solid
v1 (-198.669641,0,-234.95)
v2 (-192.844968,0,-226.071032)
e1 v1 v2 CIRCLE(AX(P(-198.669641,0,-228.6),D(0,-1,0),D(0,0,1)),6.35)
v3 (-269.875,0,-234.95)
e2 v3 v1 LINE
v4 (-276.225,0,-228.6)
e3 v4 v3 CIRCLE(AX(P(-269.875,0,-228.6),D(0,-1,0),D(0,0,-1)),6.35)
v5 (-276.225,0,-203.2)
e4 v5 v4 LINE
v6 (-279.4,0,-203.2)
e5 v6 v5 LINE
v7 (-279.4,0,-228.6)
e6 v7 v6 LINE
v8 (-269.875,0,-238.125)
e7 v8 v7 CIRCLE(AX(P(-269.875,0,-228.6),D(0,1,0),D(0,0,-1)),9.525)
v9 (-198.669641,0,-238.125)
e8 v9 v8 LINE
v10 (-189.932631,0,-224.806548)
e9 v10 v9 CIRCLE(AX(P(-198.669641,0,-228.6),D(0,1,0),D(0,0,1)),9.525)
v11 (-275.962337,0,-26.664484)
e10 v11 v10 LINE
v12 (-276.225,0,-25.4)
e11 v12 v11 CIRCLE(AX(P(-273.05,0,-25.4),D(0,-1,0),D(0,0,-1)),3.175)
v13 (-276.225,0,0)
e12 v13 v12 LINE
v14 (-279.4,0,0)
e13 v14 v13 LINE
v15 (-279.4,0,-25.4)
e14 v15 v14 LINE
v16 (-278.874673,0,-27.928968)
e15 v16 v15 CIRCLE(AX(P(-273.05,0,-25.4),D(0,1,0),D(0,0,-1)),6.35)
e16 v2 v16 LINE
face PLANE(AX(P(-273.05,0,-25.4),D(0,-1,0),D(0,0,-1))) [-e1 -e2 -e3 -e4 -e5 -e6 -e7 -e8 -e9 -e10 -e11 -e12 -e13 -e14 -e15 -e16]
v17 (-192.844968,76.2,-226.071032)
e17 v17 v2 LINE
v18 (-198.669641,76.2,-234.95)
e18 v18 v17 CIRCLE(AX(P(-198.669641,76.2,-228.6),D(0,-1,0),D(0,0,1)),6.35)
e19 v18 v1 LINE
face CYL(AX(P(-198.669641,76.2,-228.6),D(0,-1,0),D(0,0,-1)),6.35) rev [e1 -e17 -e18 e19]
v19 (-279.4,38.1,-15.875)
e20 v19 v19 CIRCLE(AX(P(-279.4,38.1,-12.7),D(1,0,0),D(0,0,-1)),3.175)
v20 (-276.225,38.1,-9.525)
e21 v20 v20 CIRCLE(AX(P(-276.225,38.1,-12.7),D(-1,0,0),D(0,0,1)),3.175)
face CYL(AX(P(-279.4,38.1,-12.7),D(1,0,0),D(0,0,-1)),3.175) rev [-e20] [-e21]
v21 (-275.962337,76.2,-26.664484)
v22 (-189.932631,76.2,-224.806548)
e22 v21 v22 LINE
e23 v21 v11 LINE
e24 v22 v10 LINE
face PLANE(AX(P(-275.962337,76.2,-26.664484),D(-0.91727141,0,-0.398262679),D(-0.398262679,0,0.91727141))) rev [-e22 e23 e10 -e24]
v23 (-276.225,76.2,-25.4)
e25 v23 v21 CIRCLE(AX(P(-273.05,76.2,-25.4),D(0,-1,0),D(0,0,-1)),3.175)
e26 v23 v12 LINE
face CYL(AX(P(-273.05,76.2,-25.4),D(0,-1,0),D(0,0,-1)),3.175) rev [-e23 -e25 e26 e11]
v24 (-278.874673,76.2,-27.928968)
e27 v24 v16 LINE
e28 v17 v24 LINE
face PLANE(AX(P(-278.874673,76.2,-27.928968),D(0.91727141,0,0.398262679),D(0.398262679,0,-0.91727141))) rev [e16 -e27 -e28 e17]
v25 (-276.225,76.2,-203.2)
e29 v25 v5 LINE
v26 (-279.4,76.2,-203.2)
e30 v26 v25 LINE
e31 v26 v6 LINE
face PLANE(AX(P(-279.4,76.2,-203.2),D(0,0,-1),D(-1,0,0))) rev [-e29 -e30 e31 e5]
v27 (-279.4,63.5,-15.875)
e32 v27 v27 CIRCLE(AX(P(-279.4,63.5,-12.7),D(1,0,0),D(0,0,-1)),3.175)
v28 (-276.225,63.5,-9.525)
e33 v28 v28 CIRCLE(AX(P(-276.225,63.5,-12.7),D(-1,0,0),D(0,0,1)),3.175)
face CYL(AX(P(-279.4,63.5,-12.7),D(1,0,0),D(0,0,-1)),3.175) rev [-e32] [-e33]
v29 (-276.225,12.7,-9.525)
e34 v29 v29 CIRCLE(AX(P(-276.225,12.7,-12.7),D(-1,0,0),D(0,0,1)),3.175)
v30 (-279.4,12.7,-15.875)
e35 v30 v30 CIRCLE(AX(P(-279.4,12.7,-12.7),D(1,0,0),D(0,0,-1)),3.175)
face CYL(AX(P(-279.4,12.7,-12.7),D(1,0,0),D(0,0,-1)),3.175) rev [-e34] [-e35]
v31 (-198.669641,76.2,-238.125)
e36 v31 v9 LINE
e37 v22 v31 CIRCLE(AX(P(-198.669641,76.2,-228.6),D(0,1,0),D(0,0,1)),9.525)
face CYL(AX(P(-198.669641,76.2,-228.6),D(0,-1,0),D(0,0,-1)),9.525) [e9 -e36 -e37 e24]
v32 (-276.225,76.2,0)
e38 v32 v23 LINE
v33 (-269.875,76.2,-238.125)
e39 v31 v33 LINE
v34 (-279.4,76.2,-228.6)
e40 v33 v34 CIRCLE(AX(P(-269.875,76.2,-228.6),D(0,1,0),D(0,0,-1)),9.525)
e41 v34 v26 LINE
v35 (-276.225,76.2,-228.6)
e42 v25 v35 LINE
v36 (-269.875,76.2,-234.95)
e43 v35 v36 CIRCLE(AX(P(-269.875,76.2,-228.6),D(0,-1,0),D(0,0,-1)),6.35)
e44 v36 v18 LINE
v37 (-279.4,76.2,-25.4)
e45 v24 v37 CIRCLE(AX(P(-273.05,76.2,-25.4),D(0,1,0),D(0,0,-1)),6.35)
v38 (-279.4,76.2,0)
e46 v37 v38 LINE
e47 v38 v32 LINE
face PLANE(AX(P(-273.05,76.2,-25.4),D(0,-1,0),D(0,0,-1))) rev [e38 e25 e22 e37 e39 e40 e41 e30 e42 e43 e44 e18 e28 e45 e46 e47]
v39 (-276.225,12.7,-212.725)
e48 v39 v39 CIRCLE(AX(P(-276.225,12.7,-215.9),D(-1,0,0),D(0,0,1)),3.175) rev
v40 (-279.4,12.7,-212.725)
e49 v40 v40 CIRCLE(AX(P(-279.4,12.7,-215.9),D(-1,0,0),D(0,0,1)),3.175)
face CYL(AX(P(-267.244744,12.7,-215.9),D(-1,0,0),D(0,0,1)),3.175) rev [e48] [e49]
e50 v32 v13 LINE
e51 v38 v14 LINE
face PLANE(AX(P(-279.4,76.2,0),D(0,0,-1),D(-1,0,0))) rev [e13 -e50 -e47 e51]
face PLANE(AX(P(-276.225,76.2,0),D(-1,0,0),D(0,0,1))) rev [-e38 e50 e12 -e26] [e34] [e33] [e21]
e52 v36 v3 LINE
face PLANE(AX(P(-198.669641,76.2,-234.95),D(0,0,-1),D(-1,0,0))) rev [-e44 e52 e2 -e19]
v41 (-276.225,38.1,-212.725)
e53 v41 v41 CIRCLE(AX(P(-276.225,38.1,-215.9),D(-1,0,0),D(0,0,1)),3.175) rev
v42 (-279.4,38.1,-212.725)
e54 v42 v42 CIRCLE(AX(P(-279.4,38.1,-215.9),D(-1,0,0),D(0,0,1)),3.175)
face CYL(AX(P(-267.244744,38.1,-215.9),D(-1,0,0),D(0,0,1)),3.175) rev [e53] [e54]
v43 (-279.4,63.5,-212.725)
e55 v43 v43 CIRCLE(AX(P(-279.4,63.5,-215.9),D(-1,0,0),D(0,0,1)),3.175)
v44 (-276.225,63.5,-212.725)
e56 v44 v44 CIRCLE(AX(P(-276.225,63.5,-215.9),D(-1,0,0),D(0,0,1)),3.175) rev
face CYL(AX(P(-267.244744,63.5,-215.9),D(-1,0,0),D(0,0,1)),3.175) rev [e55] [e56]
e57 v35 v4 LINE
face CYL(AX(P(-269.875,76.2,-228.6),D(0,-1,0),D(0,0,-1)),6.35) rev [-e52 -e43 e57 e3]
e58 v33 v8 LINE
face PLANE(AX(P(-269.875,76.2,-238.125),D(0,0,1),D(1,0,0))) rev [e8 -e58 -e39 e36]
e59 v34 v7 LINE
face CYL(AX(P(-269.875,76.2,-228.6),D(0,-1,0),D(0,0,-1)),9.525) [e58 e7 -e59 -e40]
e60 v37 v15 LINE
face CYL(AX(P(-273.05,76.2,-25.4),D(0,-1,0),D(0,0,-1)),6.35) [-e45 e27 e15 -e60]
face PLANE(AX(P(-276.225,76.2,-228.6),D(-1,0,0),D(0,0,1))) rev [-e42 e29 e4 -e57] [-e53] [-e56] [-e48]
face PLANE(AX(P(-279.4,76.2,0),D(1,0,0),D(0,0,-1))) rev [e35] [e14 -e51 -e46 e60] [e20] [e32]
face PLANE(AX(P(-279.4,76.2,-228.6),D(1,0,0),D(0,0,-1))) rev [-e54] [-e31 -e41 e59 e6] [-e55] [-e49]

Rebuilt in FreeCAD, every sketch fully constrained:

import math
import FreeCAD as App
import Part
import Sketcher
Q = App.Units.Quantity

doc = App.newDocument("Part")
body = doc.addObject("PartDesign::Body", "Body")

# Sketch on XZ plane
sketch1 = body.newObject("Sketcher::SketchObject", "Sketch")
sketch1.AttachmentSupport = (doc.getObject("XZ_Plane"), [""])
sketch1.MapMode = "FlatFace"
sketch1.addGeometry([
    Part.LineSegment(App.Vector(-279.4, -25.4, 0), App.Vector(-279.4, 0, 0)),  # 0
    Part.LineSegment(App.Vector(-279.4, 0, 0), App.Vector(-276.2, 0, 0)),  # 1
    Part.LineSegment(App.Vector(-276.2, 0, 0), App.Vector(-276.2, -25.4, 0)),  # 2
    Part.ArcOfCircle(Part.Circle(App.Vector(-273.1, -25.4, 0), App.Vector(0, 0, 1), 3.2), math.radians(180), math.radians(203)),  # 3
    Part.LineSegment(App.Vector(-276, -26.7, 0), App.Vector(-189.9, -224.8, 0)),  # 4
    Part.ArcOfCircle(Part.Circle(App.Vector(-198.7, -228.6, 0), App.Vector(0, 0, 1), 9.5), math.radians(-90), math.radians(23)),  # 5
    Part.LineSegment(App.Vector(-198.7, -238.1, 0), App.Vector(-269.9, -238.1, 0)),  # 6
    Part.ArcOfCircle(Part.Circle(App.Vector(-269.9, -228.6, 0), App.Vector(0, 0, 1), 9.5), math.radians(180), math.radians(270)),  # 7
    Part.LineSegment(App.Vector(-279.4, -228.6, 0), App.Vector(-279.4, -203.2, 0)),  # 8
    Part.LineSegment(App.Vector(-279.4, -203.2, 0), App.Vector(-276.2, -203.2, 0)),  # 9
    Part.LineSegment(App.Vector(-276.2, -203.2, 0), App.Vector(-276.2, -228.6, 0)),  # 10
    Part.ArcOfCircle(Part.Circle(App.Vector(-269.9, -228.6, 0), App.Vector(0, 0, 1), 6.3), math.radians(180), math.radians(270)),  # 11
    Part.LineSegment(App.Vector(-269.9, -234.9, 0), App.Vector(-198.7, -234.9, 0)),  # 12
    Part.ArcOfCircle(Part.Circle(App.Vector(-198.7, -228.6, 0), App.Vector(0, 0, 1), 6.3), math.radians(-90), math.radians(23)),  # 13
    Part.LineSegment(App.Vector(-192.8, -226.1, 0), App.Vector(-278.9, -27.9, 0)),  # 14
    Part.ArcOfCircle(Part.Circle(App.Vector(-273, -25.4, 0), App.Vector(0, 0, 1), 6.4), math.radians(-180), math.radians(-157)),  # 15
], False)
sketch1.addConstraint([
    Sketcher.Constraint("Coincident", 0, 2, 1, 1),
    Sketcher.Constraint("Coincident", 1, 2, 2, 1),
    Sketcher.Constraint("Tangent", 2, 2, 3, 1),
    Sketcher.Constraint("Tangent", 3, 2, 4, 1),
    Sketcher.Constraint("Tangent", 4, 2, 5, 2),
    Sketcher.Constraint("Tangent", 5, 1, 6, 1),
    Sketcher.Constraint("Tangent", 6, 2, 7, 2),
    Sketcher.Constraint("Tangent", 7, 1, 8, 1),
    Sketcher.Constraint("Coincident", 8, 2, 9, 1),
    Sketcher.Constraint("Coincident", 9, 2, 10, 1),
    Sketcher.Constraint("Tangent", 10, 2, 11, 1),
    Sketcher.Constraint("Tangent", 11, 2, 12, 1),
    Sketcher.Constraint("Tangent", 12, 2, 13, 1),
    Sketcher.Constraint("Tangent", 13, 2, 14, 1),
    Sketcher.Constraint("Tangent", 14, 2, 15, 2),
    Sketcher.Constraint("Tangent", 15, 1, 0, 1),
    Sketcher.Constraint("Vertical", 0),
    Sketcher.Constraint("Horizontal", 1),
    Sketcher.Constraint("Vertical", 2),
    Sketcher.Constraint("Horizontal", 6),
    Sketcher.Constraint("Vertical", 8),
    Sketcher.Constraint("Horizontal", 9),
    Sketcher.Constraint("Vertical", 10),
    Sketcher.Constraint("Horizontal", 12),
    Sketcher.Constraint("Coincident", 11, 3, 7, 3),
    Sketcher.Constraint("Coincident", 13, 3, 5, 3),
    Sketcher.Constraint("Coincident", 15, 3, 3, 3),
    Sketcher.Constraint("Equal", 5, 7),
    Sketcher.Constraint("Equal", 13, 15),
    Sketcher.Constraint("PointOnObject", 0, 2, -1),
    Sketcher.Constraint("Parallel", 4, 14),
    Sketcher.Constraint("Vertical", 0, 2, 7, 1),
    Sketcher.Constraint("Equal", 2, 8),
    Sketcher.Constraint("DistanceY", 0, 1, 0, 2, Q("1 in")),
    Sketcher.Constraint("Radius", 11, Q("0.25 in")),
    Sketcher.Constraint("DistanceY", 5, 3, -1, 1, Q("9 in")),
    Sketcher.Constraint("DistanceX", 0, 2, -1, 1, Q("11 in")),
    Sketcher.Constraint("Radius", 3, Q("0.125 in")),
    Sketcher.Constraint("DistanceX", 6, 2, 6, 1, 71.205359),
])
pad1 = body.newObject("PartDesign::Pad", "Pad")
pad1.Profile = sketch1
pad1.Length = Q("3 in")
pad1.Reversed = True

# Sketch on YZ plane
sketch2 = body.newObject("Sketcher::SketchObject", "Sketch001")
sketch2.AttachmentSupport = (doc.getObject("YZ_Plane"), [""])
sketch2.MapMode = "FlatFace"
sketch2.AttachmentOffset = App.Placement(App.Vector(0, 0, -10.875 * 25.4), App.Rotation())
sketch2.addGeometry([
    Part.Circle(App.Vector(63.5, -12.7, 0), App.Vector(0, 0, 1), 3.2),
    Part.Circle(App.Vector(12.7, -12.7, 0), App.Vector(0, 0, 1), 3.2),
    Part.Circle(App.Vector(38.1, -12.7, 0), App.Vector(0, 0, 1), 3.2),
], False)
sketch2.addConstraint([
    Sketcher.Constraint("Equal", 0, 1),
    Sketcher.Constraint("Equal", 1, 2),
    Sketcher.Constraint("Horizontal", 0, 3, 1, 3),
    Sketcher.Constraint("Horizontal", 1, 3, 2, 3),
    Sketcher.Constraint("Diameter", 0, Q("0.25 in")),
    Sketcher.Constraint("DistanceX", 1, 3, 0, 3, Q("2 in")),
    Sketcher.Constraint("DistanceX", 2, 3, 0, 3, Q("1 in")),
    Sketcher.Constraint("DistanceX", -1, 1, 0, 3, Q("2.5 in")),
    Sketcher.Constraint("DistanceY", 0, 3, -1, 1, Q("0.5 in")),
])
pocket1 = body.newObject("PartDesign::Pocket", "Pocket")
pocket1.Profile = sketch2
pocket1.Type = "ThroughAll"
pocket1.Midplane = True

# Sketch on YZ plane
sketch3 = body.newObject("Sketcher::SketchObject", "Sketch002")
sketch3.AttachmentSupport = (doc.getObject("YZ_Plane"), [""])
sketch3.MapMode = "FlatFace"
sketch3.AttachmentOffset = App.Placement(App.Vector(0, 0, -11 * 25.4), App.Rotation())
sketch3.addGeometry([
    Part.Circle(App.Vector(38.1, -215.9, 0), App.Vector(0, 0, 1), 3.2),
    Part.Circle(App.Vector(63.5, -215.9, 0), App.Vector(0, 0, 1), 3.2),
    Part.Circle(App.Vector(12.7, -215.9, 0), App.Vector(0, 0, 1), 3.2),
], False)
sketch3.addConstraint([
    Sketcher.Constraint("Equal", 0, 1),
    Sketcher.Constraint("Equal", 1, 2),
    Sketcher.Constraint("Horizontal", 0, 3, 1, 3),
    Sketcher.Constraint("Horizontal", 1, 3, 2, 3),
    Sketcher.Constraint("Diameter", 0, Q("0.25 in")),
    Sketcher.Constraint("DistanceX", 0, 3, 1, 3, Q("1 in")),
    Sketcher.Constraint("DistanceX", 2, 3, 0, 3, Q("1 in")),
    Sketcher.Constraint("DistanceX", -1, 1, 0, 3, Q("1.5 in")),
    Sketcher.Constraint("DistanceY", 0, 3, -1, 1, Q("8.5 in")),
])
pocket2 = body.newObject("PartDesign::Pocket", "Pocket001")
pocket2.Profile = sketch3
pocket2.Length = Q("0.125 in")
pocket2.Reversed = True

doc.recompute()
